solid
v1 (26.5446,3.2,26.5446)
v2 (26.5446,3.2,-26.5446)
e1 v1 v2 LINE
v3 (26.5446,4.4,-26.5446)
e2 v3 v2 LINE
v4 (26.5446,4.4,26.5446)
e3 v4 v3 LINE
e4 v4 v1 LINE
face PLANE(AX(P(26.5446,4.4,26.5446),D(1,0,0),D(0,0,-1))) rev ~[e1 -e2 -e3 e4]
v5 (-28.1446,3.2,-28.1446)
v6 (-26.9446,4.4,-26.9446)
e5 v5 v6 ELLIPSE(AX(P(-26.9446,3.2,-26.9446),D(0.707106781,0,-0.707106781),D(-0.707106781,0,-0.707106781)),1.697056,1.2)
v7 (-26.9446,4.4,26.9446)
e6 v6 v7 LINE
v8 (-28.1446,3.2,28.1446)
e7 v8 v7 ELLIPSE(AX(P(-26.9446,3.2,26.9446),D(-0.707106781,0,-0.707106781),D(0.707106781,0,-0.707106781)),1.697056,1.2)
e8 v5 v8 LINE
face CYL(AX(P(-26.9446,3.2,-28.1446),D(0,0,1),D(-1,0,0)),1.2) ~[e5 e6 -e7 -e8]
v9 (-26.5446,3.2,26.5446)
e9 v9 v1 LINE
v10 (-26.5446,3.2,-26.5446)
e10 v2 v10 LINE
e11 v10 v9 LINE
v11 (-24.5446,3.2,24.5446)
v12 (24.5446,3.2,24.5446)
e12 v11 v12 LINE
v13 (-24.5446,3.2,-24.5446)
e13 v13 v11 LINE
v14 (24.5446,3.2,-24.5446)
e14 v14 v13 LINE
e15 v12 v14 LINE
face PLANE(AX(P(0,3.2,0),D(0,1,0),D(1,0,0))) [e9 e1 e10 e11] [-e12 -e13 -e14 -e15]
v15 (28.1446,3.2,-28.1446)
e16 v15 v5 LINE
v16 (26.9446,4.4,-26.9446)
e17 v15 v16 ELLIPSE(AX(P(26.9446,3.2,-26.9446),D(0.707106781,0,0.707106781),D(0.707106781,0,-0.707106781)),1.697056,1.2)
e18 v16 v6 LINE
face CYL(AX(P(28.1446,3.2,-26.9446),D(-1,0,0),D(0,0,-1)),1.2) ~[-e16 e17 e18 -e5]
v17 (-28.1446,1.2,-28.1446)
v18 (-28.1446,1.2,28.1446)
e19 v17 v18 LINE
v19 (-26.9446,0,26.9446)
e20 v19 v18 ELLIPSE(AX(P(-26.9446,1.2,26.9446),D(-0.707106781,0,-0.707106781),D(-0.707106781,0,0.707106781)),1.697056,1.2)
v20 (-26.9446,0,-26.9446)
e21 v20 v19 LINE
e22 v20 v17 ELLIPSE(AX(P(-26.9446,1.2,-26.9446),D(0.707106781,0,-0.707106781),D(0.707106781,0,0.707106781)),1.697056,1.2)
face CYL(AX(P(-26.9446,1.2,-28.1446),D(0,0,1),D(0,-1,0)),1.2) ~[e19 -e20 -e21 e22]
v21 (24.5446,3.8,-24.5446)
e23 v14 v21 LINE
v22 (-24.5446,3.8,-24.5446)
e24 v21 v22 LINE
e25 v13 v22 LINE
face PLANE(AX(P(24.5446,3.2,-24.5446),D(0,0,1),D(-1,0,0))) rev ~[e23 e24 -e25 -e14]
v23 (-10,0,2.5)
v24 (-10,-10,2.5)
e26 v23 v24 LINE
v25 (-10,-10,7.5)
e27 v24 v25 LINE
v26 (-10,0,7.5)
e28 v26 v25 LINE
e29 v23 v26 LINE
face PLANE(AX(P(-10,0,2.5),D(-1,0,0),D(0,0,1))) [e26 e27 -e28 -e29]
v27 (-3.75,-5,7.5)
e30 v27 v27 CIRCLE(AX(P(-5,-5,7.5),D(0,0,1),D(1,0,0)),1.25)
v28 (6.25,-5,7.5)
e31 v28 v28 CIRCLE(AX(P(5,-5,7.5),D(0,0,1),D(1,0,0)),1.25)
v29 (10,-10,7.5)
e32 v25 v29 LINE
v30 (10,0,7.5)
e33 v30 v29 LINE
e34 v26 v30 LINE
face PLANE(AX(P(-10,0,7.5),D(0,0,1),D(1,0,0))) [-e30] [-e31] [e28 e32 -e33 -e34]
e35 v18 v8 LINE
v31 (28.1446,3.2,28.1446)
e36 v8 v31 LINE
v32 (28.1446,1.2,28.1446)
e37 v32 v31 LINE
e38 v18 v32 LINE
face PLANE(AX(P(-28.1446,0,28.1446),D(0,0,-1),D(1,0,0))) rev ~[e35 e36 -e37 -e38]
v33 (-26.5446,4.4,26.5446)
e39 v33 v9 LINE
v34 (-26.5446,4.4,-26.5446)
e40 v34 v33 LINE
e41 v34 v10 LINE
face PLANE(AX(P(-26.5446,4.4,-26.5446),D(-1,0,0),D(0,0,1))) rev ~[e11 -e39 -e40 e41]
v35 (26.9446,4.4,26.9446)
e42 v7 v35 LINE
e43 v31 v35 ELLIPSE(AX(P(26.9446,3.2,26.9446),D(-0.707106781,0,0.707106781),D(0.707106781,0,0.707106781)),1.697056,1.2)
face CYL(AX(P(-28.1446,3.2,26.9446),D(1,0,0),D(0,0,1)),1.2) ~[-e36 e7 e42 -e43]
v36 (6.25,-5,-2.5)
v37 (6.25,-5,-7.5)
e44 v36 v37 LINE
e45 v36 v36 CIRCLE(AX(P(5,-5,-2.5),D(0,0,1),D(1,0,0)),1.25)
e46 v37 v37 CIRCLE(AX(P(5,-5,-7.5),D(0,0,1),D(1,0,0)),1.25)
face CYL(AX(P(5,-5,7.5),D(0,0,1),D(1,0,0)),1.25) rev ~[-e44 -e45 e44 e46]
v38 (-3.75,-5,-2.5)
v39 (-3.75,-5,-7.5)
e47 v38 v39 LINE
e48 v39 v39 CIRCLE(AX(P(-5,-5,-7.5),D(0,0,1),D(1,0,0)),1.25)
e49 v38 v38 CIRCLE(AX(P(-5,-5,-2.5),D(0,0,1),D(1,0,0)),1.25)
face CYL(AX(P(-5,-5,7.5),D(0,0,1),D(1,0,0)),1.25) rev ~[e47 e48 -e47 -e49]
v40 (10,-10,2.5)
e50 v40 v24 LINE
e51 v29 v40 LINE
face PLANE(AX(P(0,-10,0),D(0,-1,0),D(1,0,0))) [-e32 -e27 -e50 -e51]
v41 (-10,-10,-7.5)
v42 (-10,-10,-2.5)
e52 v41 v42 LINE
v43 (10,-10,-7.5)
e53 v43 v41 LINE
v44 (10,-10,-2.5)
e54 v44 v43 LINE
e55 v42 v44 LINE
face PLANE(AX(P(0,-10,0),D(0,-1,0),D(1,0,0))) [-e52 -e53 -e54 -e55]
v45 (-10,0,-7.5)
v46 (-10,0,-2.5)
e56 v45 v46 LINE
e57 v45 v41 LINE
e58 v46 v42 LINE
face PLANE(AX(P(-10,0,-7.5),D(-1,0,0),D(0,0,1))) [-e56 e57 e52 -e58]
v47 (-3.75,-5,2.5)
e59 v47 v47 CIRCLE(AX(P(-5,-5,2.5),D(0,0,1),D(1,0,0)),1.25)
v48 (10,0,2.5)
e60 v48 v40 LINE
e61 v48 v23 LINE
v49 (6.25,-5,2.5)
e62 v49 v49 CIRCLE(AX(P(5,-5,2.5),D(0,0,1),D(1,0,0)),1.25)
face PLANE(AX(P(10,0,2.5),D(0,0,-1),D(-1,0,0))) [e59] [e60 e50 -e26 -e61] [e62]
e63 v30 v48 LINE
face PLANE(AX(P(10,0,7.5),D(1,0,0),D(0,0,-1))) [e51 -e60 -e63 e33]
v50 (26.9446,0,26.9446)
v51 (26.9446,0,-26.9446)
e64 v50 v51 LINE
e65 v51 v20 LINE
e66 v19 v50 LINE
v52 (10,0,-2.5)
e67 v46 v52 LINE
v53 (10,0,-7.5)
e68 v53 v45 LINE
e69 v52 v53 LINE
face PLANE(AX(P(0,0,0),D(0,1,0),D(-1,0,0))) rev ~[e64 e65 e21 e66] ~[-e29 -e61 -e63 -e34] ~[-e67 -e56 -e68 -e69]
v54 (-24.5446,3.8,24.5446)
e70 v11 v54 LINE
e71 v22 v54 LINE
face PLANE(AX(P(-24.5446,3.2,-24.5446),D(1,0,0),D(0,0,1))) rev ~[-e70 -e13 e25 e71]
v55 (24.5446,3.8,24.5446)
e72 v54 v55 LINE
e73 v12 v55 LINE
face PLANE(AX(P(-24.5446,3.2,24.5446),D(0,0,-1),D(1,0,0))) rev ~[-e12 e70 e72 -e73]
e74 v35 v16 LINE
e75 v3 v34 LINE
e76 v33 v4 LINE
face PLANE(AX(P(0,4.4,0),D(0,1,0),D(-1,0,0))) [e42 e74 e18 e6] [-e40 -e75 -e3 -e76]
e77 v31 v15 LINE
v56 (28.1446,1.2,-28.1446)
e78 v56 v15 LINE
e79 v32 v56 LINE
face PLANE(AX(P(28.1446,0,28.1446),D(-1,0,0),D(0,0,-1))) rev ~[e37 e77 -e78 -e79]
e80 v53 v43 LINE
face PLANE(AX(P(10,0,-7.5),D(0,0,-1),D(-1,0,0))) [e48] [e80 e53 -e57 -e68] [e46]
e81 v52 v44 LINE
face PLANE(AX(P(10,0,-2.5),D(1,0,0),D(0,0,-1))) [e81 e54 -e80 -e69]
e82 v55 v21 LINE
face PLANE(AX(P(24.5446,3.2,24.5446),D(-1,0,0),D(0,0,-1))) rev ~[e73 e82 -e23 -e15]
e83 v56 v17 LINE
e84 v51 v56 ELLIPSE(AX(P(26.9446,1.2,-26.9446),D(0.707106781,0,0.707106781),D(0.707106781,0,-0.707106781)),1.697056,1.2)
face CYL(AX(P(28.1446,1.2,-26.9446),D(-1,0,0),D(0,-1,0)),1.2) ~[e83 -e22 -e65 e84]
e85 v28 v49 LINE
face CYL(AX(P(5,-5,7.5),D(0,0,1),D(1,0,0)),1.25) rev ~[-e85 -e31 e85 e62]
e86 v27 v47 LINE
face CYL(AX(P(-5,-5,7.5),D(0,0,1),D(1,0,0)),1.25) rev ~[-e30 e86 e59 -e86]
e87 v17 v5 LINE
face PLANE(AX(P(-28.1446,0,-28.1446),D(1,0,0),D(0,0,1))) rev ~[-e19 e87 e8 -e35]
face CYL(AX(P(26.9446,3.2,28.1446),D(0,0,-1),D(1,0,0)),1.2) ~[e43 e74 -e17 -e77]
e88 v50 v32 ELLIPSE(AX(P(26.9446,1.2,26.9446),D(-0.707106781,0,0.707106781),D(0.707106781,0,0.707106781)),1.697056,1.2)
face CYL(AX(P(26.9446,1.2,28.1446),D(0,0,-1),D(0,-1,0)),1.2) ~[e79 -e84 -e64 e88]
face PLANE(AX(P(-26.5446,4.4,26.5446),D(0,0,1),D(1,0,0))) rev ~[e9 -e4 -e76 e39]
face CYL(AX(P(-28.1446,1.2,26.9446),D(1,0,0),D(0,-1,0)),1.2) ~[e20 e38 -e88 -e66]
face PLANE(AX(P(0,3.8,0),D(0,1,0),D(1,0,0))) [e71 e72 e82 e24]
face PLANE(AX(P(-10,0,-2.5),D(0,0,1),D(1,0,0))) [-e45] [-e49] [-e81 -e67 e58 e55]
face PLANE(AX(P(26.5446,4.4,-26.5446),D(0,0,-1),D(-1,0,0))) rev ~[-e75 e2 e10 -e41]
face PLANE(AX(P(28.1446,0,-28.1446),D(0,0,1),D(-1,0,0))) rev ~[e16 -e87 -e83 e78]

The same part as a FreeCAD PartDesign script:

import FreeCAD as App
import Part
import Sketcher
from FreeCAD import Vector


def edges_at(feature, points):
    """Names of the edges that pass closest to the given points."""
    edges = feature.Shape.Edges
    near = lambda p: min(range(len(edges)), key=lambda i: edges[i].distToShape(Part.Vertex(*p))[0])
    return sorted({f"Edge{near(p) + 1}" for p in points})

doc = App.newDocument("Part")
body = doc.addObject("PartDesign::Body", "Body")

# Sketch on XZ plane
sketch1 = doc.addObject("Sketcher::SketchObject", "Sketch")
body.addObject(sketch1)
sketch1.AttachmentSupport = (doc.XZ_Plane, [""])
sketch1.MapMode = "FlatFace"
sketch1.addGeometry([
    Part.LineSegment(Vector(28, 28, 0), Vector(28, -28, 0)),
    Part.LineSegment(Vector(28, -28, 0), Vector(-28, -28, 0)),
    Part.LineSegment(Vector(-28, -28, 0), Vector(-28, 28, 0)),
    Part.LineSegment(Vector(-28, 28, 0), Vector(28, 28, 0)),
], False)
sketch1.addConstraint([
    Sketcher.Constraint("Coincident", 0, 2, 1, 1),
    Sketcher.Constraint("Coincident", 1, 2, 2, 1),
    Sketcher.Constraint("Coincident", 2, 2, 3, 1),
    Sketcher.Constraint("Coincident", 3, 2, 0, 1),
    Sketcher.Constraint("Vertical", 0),
    Sketcher.Constraint("Horizontal", 1),
    Sketcher.Constraint("Vertical", 2),
    Sketcher.Constraint("Horizontal", 3),
    Sketcher.Constraint("Symmetric", 0, 2, 2, 2, -1, 1),
    Sketcher.Constraint("Equal", 3, 0),
    Sketcher.Constraint("DistanceX", 1, 2, 1, 1, 56.2892),
])
pad1 = doc.addObject("PartDesign::Pad", "Pad")
body.addObject(pad1)
pad1.Profile = sketch1
pad1.Length = 4.4
pad1.Reversed = True

# Sketch on XZ plane
sketch2 = doc.addObject("Sketcher::SketchObject", "Sketch001")
body.addObject(sketch2)
sketch2.AttachmentSupport = (doc.XZ_Plane, [""])
sketch2.MapMode = "FlatFace"
sketch2.AttachmentOffset = App.Placement(Vector(0, 0, -4.4), App.Rotation())
sketch2.addGeometry([
    Part.LineSegment(Vector(27, 27, 0), Vector(27, -27, 0)),
    Part.LineSegment(Vector(27, -27, 0), Vector(-27, -27, 0)),
    Part.LineSegment(Vector(-27, -27, 0), Vector(-27, 27, 0)),
    Part.LineSegment(Vector(-27, 27, 0), Vector(27, 27, 0)),
], False)
sketch2.addConstraint([
    Sketcher.Constraint("Coincident", 0, 2, 1, 1),
    Sketcher.Constraint("Coincident", 1, 2, 2, 1),
    Sketcher.Constraint("Coincident", 2, 2, 3, 1),
    Sketcher.Constraint("Coincident", 3, 2, 0, 1),
    Sketcher.Constraint("Vertical", 0),
    Sketcher.Constraint("Horizontal", 1),
    Sketcher.Constraint("Vertical", 2),
    Sketcher.Constraint("Horizontal", 3),
    Sketcher.Constraint("Symmetric", 0, 2, 2, 2, -1, 1),
    Sketcher.Constraint("Equal", 3, 0),
    Sketcher.Constraint("DistanceX", 1, 2, 1, 1, 53.0892),
])
pocket1 = doc.addObject("PartDesign::Pocket", "Pocket")
body.addObject(pocket1)
pocket1.Profile = sketch2
pocket1.Length = 1.2
pocket1.Reversed = True

# Sketch on XZ plane
sketch3 = doc.addObject("Sketcher::SketchObject", "Sketch002")
body.addObject(sketch3)
sketch3.AttachmentSupport = (doc.XZ_Plane, [""])
sketch3.MapMode = "FlatFace"
sketch3.AttachmentOffset = App.Placement(Vector(0, 0, -3.2), App.Rotation())
sketch3.addGeometry([
    Part.LineSegment(Vector(25, 25, 0), Vector(25, -25, 0)),
    Part.LineSegment(Vector(25, -25, 0), Vector(-25, -25, 0)),
    Part.LineSegment(Vector(-25, -25, 0), Vector(-25, 25, 0)),
    Part.LineSegment(Vector(-25, 25, 0), Vector(25, 25, 0)),
], False)
sketch3.addConstraint([
    Sketcher.Constraint("Coincident", 0, 2, 1, 1),
    Sketcher.Constraint("Coincident", 1, 2, 2, 1),
    Sketcher.Constraint("Coincident", 2, 2, 3, 1),
    Sketcher.Constraint("Coincident", 3, 2, 0, 1),
    Sketcher.Constraint("Vertical", 0),
    Sketcher.Constraint("Horizontal", 1),
    Sketcher.Constraint("Vertical", 2),
    Sketcher.Constraint("Horizontal", 3),
    Sketcher.Constraint("Symmetric", 0, 2, 2, 2, -1, 1),
    Sketcher.Constraint("Equal", 3, 0),
    Sketcher.Constraint("DistanceX", 1, 2, 1, 1, 49.0892),
])
pad2 = doc.addObject("PartDesign::Pad", "Pad001")
body.addObject(pad2)
pad2.Profile = sketch3
pad2.Length = 0.6
pad2.Reversed = True

# Sketch on XZ plane
sketch4 = doc.addObject("Sketcher::SketchObject", "Sketch003")
body.addObject(sketch4)
sketch4.AttachmentSupport = (doc.XZ_Plane, [""])
sketch4.MapMode = "FlatFace"
sketch4.addGeometry([
    Part.LineSegment(Vector(10, 8, 0), Vector(-10, 8, 0)),  # 0
    Part.LineSegment(Vector(-10, 8, 0), Vector(-10, 2, 0)),  # 1
    Part.LineSegment(Vector(-10, 2, 0), Vector(10, 2, 0)),  # 2
    Part.LineSegment(Vector(10, 2, 0), Vector(10, 8, 0)),  # 3
    Part.LineSegment(Vector(10, -2, 0), Vector(-10, -2, 0)),  # 4
    Part.LineSegment(Vector(-10, -2, 0), Vector(-10, -8, 0)),  # 5
    Part.LineSegment(Vector(-10, -8, 0), Vector(10, -8, 0)),  # 6
    Part.LineSegment(Vector(10, -8, 0), Vector(10, -2, 0)),  # 7
], False)
sketch4.addConstraint([
    Sketcher.Constraint("Coincident", 0, 2, 1, 1),
    Sketcher.Constraint("Coincident", 1, 2, 2, 1),
    Sketcher.Constraint("Coincident", 2, 2, 3, 1),
    Sketcher.Constraint("Coincident", 3, 2, 0, 1),
    Sketcher.Constraint("Coincident", 4, 2, 5, 1),
    Sketcher.Constraint("Coincident", 5, 2, 6, 1),
    Sketcher.Constraint("Coincident", 6, 2, 7, 1),
    Sketcher.Constraint("Coincident", 7, 2, 4, 1),
    Sketcher.Constraint("Horizontal", 0),
    Sketcher.Constraint("Vertical", 1),
    Sketcher.Constraint("Horizontal", 2),
    Sketcher.Constraint("Vertical", 3),
    Sketcher.Constraint("Horizontal", 4),
    Sketcher.Constraint("Vertical", 5),
    Sketcher.Constraint("Horizontal", 6),
    Sketcher.Constraint("Vertical", 7),
    Sketcher.Constraint("Symmetric", 2, 2, 4, 2, -1, 1),
    Sketcher.Constraint("Symmetric", 0, 2, 6, 2, -1, 1),
    Sketcher.Constraint("Vertical", 1, 2, 4, 2),
    Sketcher.Constraint("DistanceX", 0, 2, 0, 1, 20.0),
    Sketcher.Constraint("DistanceY", 1, 2, 1, 1, 5.0),
    Sketcher.Constraint("DistanceY", 4, 2, 1, 2, 5.0),
])
pad3 = doc.addObject("PartDesign::Pad", "Pad002")
body.addObject(pad3)
pad3.Profile = sketch4
pad3.Length = 10

# Sketch on XY plane
sketch5 = doc.addObject("Sketcher::SketchObject", "Sketch004")
body.addObject(sketch5)
sketch5.AttachmentSupport = (doc.XY_Plane, [""])
sketch5.MapMode = "FlatFace"
sketch5.AttachmentOffset = App.Placement(Vector(0, 0, 7.5), App.Rotation())
sketch5.addGeometry([
    Part.Circle(Vector(5, -5, 0), Vector(0, 0, 1), 1.2),
    Part.Circle(Vector(-5, -5, 0), Vector(0, 0, 1), 1.2),
], False)
sketch5.addConstraint([
    Sketcher.Constraint("Equal", 0, 1),
    Sketcher.Constraint("Symmetric", 0, 3, 1, 3, -2),
    Sketcher.Constraint("Diameter", 0, 2.5),
    Sketcher.Constraint("DistanceX", -1, 1, 0, 3, 5.0),
    Sketcher.Constraint("DistanceY", 0, 3, -1, 1, 5.0),
])
pocket2 = doc.addObject("PartDesign::Pocket", "Pocket001")
body.addObject(pocket2)
pocket2.Profile = sketch5
pocket2.Length = 15
doc.recompute()

fillet = doc.addObject("PartDesign::Fillet", "Fillet")
body.addObject(fillet)
fillet.Base = (pocket2, edges_at(pocket2, [
    (0, 4.4, 28.145),
    (28.145, 4.4, 0),
    (0, 4.4, -28.145),
    (-28.145, 4.4, 0),
    (-28.145, 0, 0),
    (0, 0, 28.145),
    (28.145, 0, 0),
    (0, 0, -28.145),
]))
fillet.Radius = 1.2

doc.recompute()
